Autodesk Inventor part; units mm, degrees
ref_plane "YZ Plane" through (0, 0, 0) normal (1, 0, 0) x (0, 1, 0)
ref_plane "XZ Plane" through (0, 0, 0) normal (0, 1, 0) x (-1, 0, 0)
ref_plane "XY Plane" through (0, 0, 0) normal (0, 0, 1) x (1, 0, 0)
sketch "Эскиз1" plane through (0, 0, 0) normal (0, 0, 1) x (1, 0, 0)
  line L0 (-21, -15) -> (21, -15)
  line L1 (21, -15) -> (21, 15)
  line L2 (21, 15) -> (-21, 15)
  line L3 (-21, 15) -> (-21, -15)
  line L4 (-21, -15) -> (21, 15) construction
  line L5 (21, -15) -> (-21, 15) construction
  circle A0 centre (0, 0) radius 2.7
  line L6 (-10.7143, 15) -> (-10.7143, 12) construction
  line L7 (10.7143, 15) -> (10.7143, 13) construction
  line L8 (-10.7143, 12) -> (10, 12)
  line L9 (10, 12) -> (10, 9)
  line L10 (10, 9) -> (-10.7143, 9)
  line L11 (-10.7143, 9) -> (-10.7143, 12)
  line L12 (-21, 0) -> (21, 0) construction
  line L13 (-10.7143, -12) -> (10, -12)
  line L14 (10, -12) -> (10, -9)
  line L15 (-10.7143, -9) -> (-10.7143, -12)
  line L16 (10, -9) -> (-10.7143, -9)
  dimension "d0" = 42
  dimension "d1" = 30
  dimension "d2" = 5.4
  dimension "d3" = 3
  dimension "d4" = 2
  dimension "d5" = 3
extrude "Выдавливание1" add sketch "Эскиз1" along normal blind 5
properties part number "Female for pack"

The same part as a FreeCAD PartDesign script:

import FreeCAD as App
import Part
import Sketcher
Q = App.Units.Quantity


def add_polygon(sketch, points):
    """Adds a closed chain of lines whose ends are joined by coincident constraints."""
    first, n = sketch.GeometryCount, len(points)
    for a, b in zip(points, points[1:] + points[:1]):
        sketch.addGeometry(Part.LineSegment(App.Vector(*a, 0), App.Vector(*b, 0)), False)
    for i in range(n):
        sketch.addConstraint(Sketcher.Constraint("Coincident", first + i, 2, first + (i + 1) % n, 1))

doc = App.newDocument("Part")
body = doc.addObject("PartDesign::Body", "Body")

sketch1 = body.newObject("Sketcher::SketchObject", "Sketch")
sketch1.AttachmentSupport = (doc.getObject("XY_Plane"), [""])
sketch1.MapMode = "FlatFace"
add_polygon(sketch1, [(-21, 15), (-21, -15), (21, -15), (21, 15)])
add_polygon(sketch1, [(10, -12), (-10.7, -12), (-10.7, -9), (10, -9)])
add_polygon(sketch1, [(-10.7, 9), (-10.7, 12), (10, 12), (10, 9)])
sketch1.addGeometry(Part.Circle(App.Vector(0, 0, 0), App.Vector(0, 0, 1), 2.7), False)
sketch1.addConstraint([
    Sketcher.Constraint("Vertical", 0),
    Sketcher.Constraint("Horizontal", 1),
    Sketcher.Constraint("Vertical", 2),
    Sketcher.Constraint("Horizontal", 3),
    Sketcher.Constraint("Horizontal", 4),
    Sketcher.Constraint("Vertical", 5),
    Sketcher.Constraint("Horizontal", 6),
    Sketcher.Constraint("Vertical", 7),
    Sketcher.Constraint("Vertical", 8),
    Sketcher.Constraint("Horizontal", 9),
    Sketcher.Constraint("Vertical", 10),
    Sketcher.Constraint("Horizontal", 11),
    Sketcher.Constraint("Coincident", 12, 3, -1, 1),
    Sketcher.Constraint("Symmetric", 0, 2, 2, 2, -1, 1),
    Sketcher.Constraint("Symmetric", 4, 2, 8, 2, -1),
    Sketcher.Constraint("Symmetric", 6, 2, 10, 2, -1),
    Sketcher.Constraint("Diameter", 12, Q("5.4 mm")),
    Sketcher.Constraint("DistanceX", 1, 1, 1, 2, Q("42 mm")),
    Sketcher.Constraint("DistanceY", 0, 2, 0, 1, Q("30 mm")),
    Sketcher.Constraint("DistanceY", 5, 1, 5, 2, Q("3 mm")),
    Sketcher.Constraint("DistanceY", 0, 2, 4, 2, Q("3 mm")),
    Sketcher.Constraint("DistanceX", -1, 1, 6, 2, Q("10 mm")),
    Sketcher.Constraint("DistanceX", 4, 2, 4, 1, Q("20.7143 mm")),
])
pad1 = body.newObject("PartDesign::Pad", "Pad")
pad1.Profile = sketch1
pad1.Length = 5

doc.recompute()
